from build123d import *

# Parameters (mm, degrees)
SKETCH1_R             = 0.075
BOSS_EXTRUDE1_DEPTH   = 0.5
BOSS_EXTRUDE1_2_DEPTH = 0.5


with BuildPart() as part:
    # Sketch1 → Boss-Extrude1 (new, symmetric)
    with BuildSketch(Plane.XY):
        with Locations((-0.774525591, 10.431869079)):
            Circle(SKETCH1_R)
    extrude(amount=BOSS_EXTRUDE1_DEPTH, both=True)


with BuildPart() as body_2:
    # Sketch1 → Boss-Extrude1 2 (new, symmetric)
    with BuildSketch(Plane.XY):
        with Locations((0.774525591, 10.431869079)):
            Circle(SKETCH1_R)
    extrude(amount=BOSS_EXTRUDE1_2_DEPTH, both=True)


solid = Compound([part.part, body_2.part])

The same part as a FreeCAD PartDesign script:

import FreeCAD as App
import Part
import Sketcher

V = App.Vector

doc = App.newDocument("Part")
body = doc.addObject("PartDesign::Body", "Body")

sketch1 = body.newObject("Sketcher::SketchObject", "Sketch")
sketch1.AttachmentSupport = (doc.getObject("XY_Plane"), [""])
sketch1.MapMode = "FlatFace"
sketch1.addGeometry(Part.Circle(V(-0.77, 10.43, 0), V(0, 0, 1), 0.07), False)
sketch1.addConstraint([
    Sketcher.Constraint("Diameter", 0, 0.15),
    Sketcher.Constraint("DistanceY", -1, 1, 0, 3, 10.431869),
    Sketcher.Constraint("DistanceX", 0, 3, -1, 1, 0.774526),
])
pad1 = body.newObject("PartDesign::Pad", "Pad")
pad1.Profile = sketch1
pad1.Length = 1
pad1.Midplane = True
body2 = doc.addObject("PartDesign::Body", "Body001")

sketch2 = body2.newObject("Sketcher::SketchObject", "Sketch001")
sketch2.AttachmentSupport = (doc.getObject("XY_Plane001"), [""])
sketch2.MapMode = "FlatFace"
sketch2.addGeometry(Part.Circle(V(0.77, 10.43, 0), V(0, 0, 1), 0.07), False)
sketch2.addConstraint([
    Sketcher.Constraint("Diameter", 0, 0.15),
    Sketcher.Constraint("DistanceY", -1, 1, 0, 3, 10.431869),
    Sketcher.Constraint("DistanceX", -1, 1, 0, 3, 0.774526),
])
pad2 = body2.newObject("PartDesign::Pad", "Pad001")
pad2.Profile = sketch2
pad2.Length = 1
pad2.Midplane = True

doc.recompute()
